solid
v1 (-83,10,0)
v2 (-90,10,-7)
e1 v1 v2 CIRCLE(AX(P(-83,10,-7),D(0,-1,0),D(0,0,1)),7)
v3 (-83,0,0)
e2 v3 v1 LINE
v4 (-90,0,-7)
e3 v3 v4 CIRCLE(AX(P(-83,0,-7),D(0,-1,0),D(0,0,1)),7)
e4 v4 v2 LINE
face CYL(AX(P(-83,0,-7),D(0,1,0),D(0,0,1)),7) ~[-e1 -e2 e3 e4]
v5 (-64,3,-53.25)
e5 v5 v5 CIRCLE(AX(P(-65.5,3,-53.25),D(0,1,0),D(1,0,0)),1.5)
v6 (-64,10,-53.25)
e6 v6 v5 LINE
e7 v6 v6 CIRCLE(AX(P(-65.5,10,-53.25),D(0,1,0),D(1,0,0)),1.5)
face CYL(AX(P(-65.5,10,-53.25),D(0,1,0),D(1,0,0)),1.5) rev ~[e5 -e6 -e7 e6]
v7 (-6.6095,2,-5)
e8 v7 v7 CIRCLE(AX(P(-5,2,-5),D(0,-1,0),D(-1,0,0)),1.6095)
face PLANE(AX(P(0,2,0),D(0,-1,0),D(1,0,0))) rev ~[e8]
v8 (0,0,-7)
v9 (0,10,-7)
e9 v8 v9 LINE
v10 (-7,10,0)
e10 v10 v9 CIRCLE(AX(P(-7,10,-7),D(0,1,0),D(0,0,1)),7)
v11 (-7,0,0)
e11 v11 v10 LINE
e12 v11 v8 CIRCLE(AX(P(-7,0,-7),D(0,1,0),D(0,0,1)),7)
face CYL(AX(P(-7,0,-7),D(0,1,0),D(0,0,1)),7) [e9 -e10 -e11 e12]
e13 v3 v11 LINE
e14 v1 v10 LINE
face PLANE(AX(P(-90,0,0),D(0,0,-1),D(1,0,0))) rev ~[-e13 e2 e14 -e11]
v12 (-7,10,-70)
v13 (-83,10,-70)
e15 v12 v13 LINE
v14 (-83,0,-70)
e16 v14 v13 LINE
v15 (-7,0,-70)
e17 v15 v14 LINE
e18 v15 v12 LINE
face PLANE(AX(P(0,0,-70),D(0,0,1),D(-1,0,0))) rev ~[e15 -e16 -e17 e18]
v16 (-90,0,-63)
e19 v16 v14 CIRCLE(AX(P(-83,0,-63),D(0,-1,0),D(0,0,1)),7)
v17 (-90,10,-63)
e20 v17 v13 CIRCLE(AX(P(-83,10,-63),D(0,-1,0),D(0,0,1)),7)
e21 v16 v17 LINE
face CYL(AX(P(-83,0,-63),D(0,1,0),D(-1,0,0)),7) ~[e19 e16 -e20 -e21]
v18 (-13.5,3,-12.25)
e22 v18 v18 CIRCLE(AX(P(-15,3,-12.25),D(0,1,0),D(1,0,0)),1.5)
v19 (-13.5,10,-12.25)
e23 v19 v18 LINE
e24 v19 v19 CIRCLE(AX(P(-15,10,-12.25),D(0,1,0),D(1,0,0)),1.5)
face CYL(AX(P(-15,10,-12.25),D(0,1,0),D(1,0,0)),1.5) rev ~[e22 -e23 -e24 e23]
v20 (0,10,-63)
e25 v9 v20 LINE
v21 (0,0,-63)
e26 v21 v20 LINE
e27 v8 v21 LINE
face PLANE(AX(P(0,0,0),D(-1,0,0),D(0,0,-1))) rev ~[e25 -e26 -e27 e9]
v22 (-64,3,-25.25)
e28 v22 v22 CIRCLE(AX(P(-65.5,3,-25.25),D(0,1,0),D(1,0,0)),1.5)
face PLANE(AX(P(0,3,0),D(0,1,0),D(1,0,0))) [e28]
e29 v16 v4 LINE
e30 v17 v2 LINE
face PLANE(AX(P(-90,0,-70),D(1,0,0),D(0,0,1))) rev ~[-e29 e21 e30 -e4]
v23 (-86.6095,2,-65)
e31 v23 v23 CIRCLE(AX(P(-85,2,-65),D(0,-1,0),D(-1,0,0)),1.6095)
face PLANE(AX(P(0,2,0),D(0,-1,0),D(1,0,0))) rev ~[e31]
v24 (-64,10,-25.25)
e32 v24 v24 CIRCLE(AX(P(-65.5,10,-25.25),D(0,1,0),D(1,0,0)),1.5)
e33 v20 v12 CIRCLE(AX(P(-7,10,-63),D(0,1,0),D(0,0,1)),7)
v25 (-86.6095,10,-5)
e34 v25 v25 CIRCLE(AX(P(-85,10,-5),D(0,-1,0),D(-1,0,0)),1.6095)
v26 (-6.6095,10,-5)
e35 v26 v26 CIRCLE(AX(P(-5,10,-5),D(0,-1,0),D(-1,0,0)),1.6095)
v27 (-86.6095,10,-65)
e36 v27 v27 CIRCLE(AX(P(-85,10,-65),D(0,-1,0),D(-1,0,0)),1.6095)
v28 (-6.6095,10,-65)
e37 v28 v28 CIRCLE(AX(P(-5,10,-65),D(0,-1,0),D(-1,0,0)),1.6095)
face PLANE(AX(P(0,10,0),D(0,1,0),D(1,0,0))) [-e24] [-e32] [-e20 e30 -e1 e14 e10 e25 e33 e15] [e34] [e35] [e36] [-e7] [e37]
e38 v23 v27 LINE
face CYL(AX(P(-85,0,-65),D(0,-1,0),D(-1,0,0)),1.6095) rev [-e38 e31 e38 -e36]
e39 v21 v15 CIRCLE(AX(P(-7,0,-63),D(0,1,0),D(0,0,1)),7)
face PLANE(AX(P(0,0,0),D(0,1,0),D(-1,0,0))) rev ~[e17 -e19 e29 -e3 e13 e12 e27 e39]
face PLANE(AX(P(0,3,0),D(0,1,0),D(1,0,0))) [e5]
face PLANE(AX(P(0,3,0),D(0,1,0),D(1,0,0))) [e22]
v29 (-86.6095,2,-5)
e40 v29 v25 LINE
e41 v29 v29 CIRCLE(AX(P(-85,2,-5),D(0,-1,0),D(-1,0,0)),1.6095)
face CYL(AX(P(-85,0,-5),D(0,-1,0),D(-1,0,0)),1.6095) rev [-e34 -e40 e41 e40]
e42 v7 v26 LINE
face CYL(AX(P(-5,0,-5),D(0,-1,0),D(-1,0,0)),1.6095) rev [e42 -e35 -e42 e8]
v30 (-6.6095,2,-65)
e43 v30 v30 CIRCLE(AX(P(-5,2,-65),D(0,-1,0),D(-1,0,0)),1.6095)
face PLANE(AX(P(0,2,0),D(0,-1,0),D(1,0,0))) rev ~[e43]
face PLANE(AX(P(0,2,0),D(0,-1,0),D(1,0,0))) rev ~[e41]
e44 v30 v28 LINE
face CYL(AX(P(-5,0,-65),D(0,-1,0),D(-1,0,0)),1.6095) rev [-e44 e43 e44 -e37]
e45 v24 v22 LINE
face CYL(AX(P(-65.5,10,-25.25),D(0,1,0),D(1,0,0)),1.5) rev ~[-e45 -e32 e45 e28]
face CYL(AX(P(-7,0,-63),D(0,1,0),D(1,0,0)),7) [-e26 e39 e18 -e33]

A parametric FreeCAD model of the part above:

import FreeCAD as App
import Part
import Sketcher

V = App.Vector


def edges_at(feature, points):
    """Names of the edges that pass closest to the given points."""
    edges = feature.Shape.Edges
    near = lambda p: min(range(len(edges)), key=lambda i: edges[i].distToShape(Part.Vertex(*p))[0])
    return sorted({f"Edge{near(p) + 1}" for p in points})


def add_polygon(sketch, points):
    """Adds a closed chain of lines whose ends are joined by coincident constraints."""
    first, n = sketch.GeometryCount, len(points)
    for a, b in zip(points, points[1:] + points[:1]):
        sketch.addGeometry(Part.LineSegment(App.Vector(*a, 0), App.Vector(*b, 0)), False)
    for i in range(n):
        sketch.addConstraint(Sketcher.Constraint("Coincident", first + i, 2, first + (i + 1) % n, 1))

doc = App.newDocument("Part")
params = doc.addObject("Spreadsheet::Sheet", "Params")
for row, (alias, value) in enumerate([
    ("sketch1_width", "90 mm"),
    ("sketch1_height", "70 mm"),
    ("pad1_length", "15 mm"),
    ("sketch2_width", "90 mm"),
    ("sketch2_height", "70 mm"),
    ("pocket1_length", "5 mm"),
    ("fillet_radius", "7 mm"),
    ("pad2_length", "2 mm"),
    ("sketch4_diameter", "3 mm"),
    ("pocket2_length", "7 mm"),
], start=1):
    params.set(f"A{row}", alias)
    params.set(f"B{row}", "=" + value)
    params.setAlias(f"B{row}", alias)

body = doc.addObject("PartDesign::Body", "Body")

# Sketch on XZ plane
sketch1 = body.newObject("Sketcher::SketchObject", "Sketch")
sketch1.AttachmentSupport = (doc.getObject("XZ_Plane"), [""])
sketch1.MapMode = "FlatFace"
add_polygon(sketch1, [(-90, 0), (0, 0), (0, -70), (-90, -70)])  # lines 0-3
sketch1.addGeometry(Part.Circle(V(-5, -65, 0), V(0, 0, 1), 1.6095), False)  # 4
sketch1.addGeometry(Part.Circle(V(-85, -65, 0), V(0, 0, 1), 1.6095), False)  # 5
sketch1.addGeometry(Part.Circle(V(-5, -5, 0), V(0, 0, 1), 1.6095), False)  # 6
sketch1.addGeometry(Part.Circle(V(-85, -5, 0), V(0, 0, 1), 1.6095), False)  # 7
sketch1.addConstraint([
    Sketcher.Constraint("Horizontal", 0),
    Sketcher.Constraint("Vertical", 1),
    Sketcher.Constraint("Horizontal", 2),
    Sketcher.Constraint("Vertical", 3),
    Sketcher.Constraint("Coincident", 0, 2, -1, 1),
    Sketcher.Constraint("Equal", 4, 5),
    Sketcher.Constraint("Equal", 5, 6),
    Sketcher.Constraint("Equal", 6, 7),
    Sketcher.Constraint("Horizontal", 4, 3, 5, 3),
    Sketcher.Constraint("Horizontal", 6, 3, 7, 3),
    Sketcher.Constraint("Vertical", 4, 3, 6, 3),
    Sketcher.Constraint("Vertical", 5, 3, 7, 3),
    Sketcher.Constraint("DistanceX", 0, 1, 0, 2, 90.0),
    Sketcher.Constraint("DistanceY", 1, 2, 1, 1, 70.0),
    Sketcher.Constraint("Diameter", 4, 3.219),
    Sketcher.Constraint("DistanceX", 4, 3, -1, 1, 5.0),
    Sketcher.Constraint("DistanceY", 6, 3, -1, 1, 5.0),
    Sketcher.Constraint("DistanceY", 1, 2, 4, 3, 5.0),
    Sketcher.Constraint("DistanceX", 2, 2, 5, 3, 5.0),
])
sketch1.setExpression("Constraints[16]", "Params.sketch1_width")
sketch1.setExpression("Constraints[17]", "Params.sketch1_height")
pad1 = body.newObject("PartDesign::Pad", "Pad")
pad1.Profile = sketch1
pad1.setExpression("Length", "Params.pad1_length")
pad1.Reversed = True

# Sketch on XZ plane
sketch2 = body.newObject("Sketcher::SketchObject", "Sketch001")
sketch2.AttachmentSupport = (doc.getObject("XZ_Plane"), [""])
sketch2.MapMode = "FlatFace"
sketch2.AttachmentOffset = App.Placement(V(0, 0, -15), App.Rotation())
add_polygon(sketch2, [(0, -70), (-90, -70), (-90, 0), (0, 0)])  # lines 0-3
sketch2.addConstraint([
    Sketcher.Constraint("Horizontal", 0),
    Sketcher.Constraint("Vertical", 1),
    Sketcher.Constraint("Horizontal", 2),
    Sketcher.Constraint("Vertical", 3),
    Sketcher.Constraint("Coincident", 2, 2, -1, 1),
    Sketcher.Constraint("DistanceX", 0, 2, 0, 1, 90.0),
    Sketcher.Constraint("DistanceY", 1, 1, 1, 2, 70.0),
])
sketch2.setExpression("Constraints[9]", "Params.sketch2_width")
sketch2.setExpression("Constraints[10]", "Params.sketch2_height")
pocket1 = body.newObject("PartDesign::Pocket", "Pocket")
pocket1.Profile = sketch2
pocket1.setExpression("Length", "Params.pocket1_length")
pocket1.Reversed = True
doc.recompute()

fillet = body.newObject("PartDesign::Fillet", "Fillet")
fillet.Base = (pocket1, edges_at(pocket1, [
    (-90, 5, -70),
    (-90, 5, 0),
    (0, 5, -70),
    (0, 5, 0),
]))
fillet.setExpression("Radius", "Params.fillet_radius")

# Sketch on XZ plane
sketch3 = body.newObject("Sketcher::SketchObject", "Sketch002")
sketch3.AttachmentSupport = (doc.getObject("XZ_Plane"), [""])
sketch3.MapMode = "FlatFace"
sketch3.addGeometry([
    Part.Circle(V(-85, -65, 0), V(0, 0, 1), 1.6095),
    Part.Circle(V(-85, -5, 0), V(0, 0, 1), 1.6095),
    Part.Circle(V(-5, -5, 0), V(0, 0, 1), 1.6095),
    Part.Circle(V(-5, -65, 0), V(0, 0, 1), 1.6095),
], False)
sketch3.addConstraint([
    Sketcher.Constraint("Equal", 0, 1),
    Sketcher.Constraint("Equal", 1, 2),
    Sketcher.Constraint("Equal", 2, 3),
    Sketcher.Constraint("Horizontal", 1, 3, 2, 3),
    Sketcher.Constraint("Horizontal", 0, 3, 3, 3),
    Sketcher.Constraint("Vertical", 0, 3, 1, 3),
    Sketcher.Constraint("Vertical", 2, 3, 3, 3),
    Sketcher.Constraint("Diameter", 0, 3.219),
    Sketcher.Constraint("DistanceX", 0, 3, -1, 1, 85.0),
    Sketcher.Constraint("DistanceY", 0, 3, -1, 1, 65.0),
    Sketcher.Constraint("DistanceY", 1, 3, -1, 1, 5.0),
    Sketcher.Constraint("DistanceX", 2, 3, -1, 1, 5.0),
])
pad2 = body.newObject("PartDesign::Pad", "Pad001")
pad2.Profile = sketch3
pad2.setExpression("Length", "Params.pad2_length")
pad2.Reversed = True

# Sketch on XZ plane
sketch4 = body.newObject("Sketcher::SketchObject", "Sketch003")
sketch4.AttachmentSupport = (doc.getObject("XZ_Plane"), [""])
sketch4.MapMode = "FlatFace"
sketch4.AttachmentOffset = App.Placement(V(0, 0, -10), App.Rotation())
sketch4.addGeometry([
    Part.Circle(V(-15, -12.25, 0), V(0, 0, 1), 1.5),
    Part.Circle(V(-65.5, -53.25, 0), V(0, 0, 1), 1.5),
    Part.Circle(V(-65.5, -25.25, 0), V(0, 0, 1), 1.5),
], False)
sketch4.addConstraint([
    Sketcher.Constraint("Equal", 0, 1),
    Sketcher.Constraint("Equal", 1, 2),
    Sketcher.Constraint("Vertical", 1, 3, 2, 3),
    Sketcher.Constraint("Diameter", 0, 3.0),
    Sketcher.Constraint("DistanceX", 0, 3, -1, 1, 15.0),
    Sketcher.Constraint("DistanceY", 1, 3, 0, 3, 41.0),
    Sketcher.Constraint("DistanceY", 1, 3, 2, 3, 28.0),
    Sketcher.Constraint("DistanceX", 1, 3, -1, 1, 65.5),
    Sketcher.Constraint("DistanceY", 0, 3, -1, 1, 12.25),
])
sketch4.setExpression("Constraints[3]", "Params.sketch4_diameter")
pocket2 = body.newObject("PartDesign::Pocket", "Pocket001")
pocket2.Profile = sketch4
pocket2.setExpression("Length", "Params.pocket2_length")
pocket2.Reversed = True

doc.recompute()
